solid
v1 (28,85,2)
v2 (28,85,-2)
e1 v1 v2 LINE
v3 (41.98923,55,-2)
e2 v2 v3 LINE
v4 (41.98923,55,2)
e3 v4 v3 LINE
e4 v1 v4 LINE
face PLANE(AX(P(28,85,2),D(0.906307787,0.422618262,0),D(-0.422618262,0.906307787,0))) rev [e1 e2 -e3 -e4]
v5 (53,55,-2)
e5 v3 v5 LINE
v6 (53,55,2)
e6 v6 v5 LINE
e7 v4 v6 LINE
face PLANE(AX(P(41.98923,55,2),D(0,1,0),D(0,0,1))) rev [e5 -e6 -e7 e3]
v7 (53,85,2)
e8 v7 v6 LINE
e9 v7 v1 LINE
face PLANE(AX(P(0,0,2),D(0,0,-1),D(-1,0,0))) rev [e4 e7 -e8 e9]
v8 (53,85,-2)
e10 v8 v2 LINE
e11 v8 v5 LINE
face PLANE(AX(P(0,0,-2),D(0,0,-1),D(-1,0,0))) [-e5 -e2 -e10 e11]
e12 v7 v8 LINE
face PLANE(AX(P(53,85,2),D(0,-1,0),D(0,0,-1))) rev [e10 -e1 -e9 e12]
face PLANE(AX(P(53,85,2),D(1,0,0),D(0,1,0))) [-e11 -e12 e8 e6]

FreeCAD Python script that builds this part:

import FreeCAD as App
import Part
import Sketcher

V = App.Vector
Q = App.Units.Quantity


def add_polygon(sketch, points):
    """Adds a closed chain of lines whose ends are joined by coincident constraints."""
    first, n = sketch.GeometryCount, len(points)
    for a, b in zip(points, points[1:] + points[:1]):
        sketch.addGeometry(Part.LineSegment(App.Vector(*a, 0), App.Vector(*b, 0)), False)
    for i in range(n):
        sketch.addConstraint(Sketcher.Constraint("Coincident", first + i, 2, first + (i + 1) % n, 1))

doc = App.newDocument("Part")
body = doc.addObject("PartDesign::Body", "Body")

# Sketch on XY plane
sketch1 = doc.addObject("Sketcher::SketchObject", "Sketch")
body.addObject(sketch1)
sketch1.AttachmentSupport = (doc.XY_Plane, [""])
sketch1.MapMode = "FlatFace"
add_polygon(sketch1, [(53, 55), (53, 85), (28, 85), (42, 55)])  # lines 0-3
sketch1.addConstraint(Sketcher.Constraint("Vertical", 0))
sketch1.addConstraint(Sketcher.Constraint("Horizontal", 1))
sketch1.addConstraint(Sketcher.Constraint("Horizontal", 3))
sketch1.addConstraint(Sketcher.Constraint("DistanceX", 1, 2, 1, 1, Q("25 mm")))
sketch1.addConstraint(Sketcher.Constraint("DistanceY", 0, 1, 0, 2, Q("30 mm")))
sketch1.addConstraint(Sketcher.Constraint("Angle", 2, Q("-65 deg")))
sketch1.addConstraint(Sketcher.Constraint("DistanceX", -1, 1, 0, 2, Q("53 mm")))
sketch1.addConstraint(Sketcher.Constraint("DistanceY", -1, 1, 0, 2, Q("85 mm")))
pad1 = doc.addObject("PartDesign::Pad", "Pad")
body.addObject(pad1)
pad1.Profile = sketch1
pad1.Length = 4
pad1.Midplane = True

doc.recompute()
